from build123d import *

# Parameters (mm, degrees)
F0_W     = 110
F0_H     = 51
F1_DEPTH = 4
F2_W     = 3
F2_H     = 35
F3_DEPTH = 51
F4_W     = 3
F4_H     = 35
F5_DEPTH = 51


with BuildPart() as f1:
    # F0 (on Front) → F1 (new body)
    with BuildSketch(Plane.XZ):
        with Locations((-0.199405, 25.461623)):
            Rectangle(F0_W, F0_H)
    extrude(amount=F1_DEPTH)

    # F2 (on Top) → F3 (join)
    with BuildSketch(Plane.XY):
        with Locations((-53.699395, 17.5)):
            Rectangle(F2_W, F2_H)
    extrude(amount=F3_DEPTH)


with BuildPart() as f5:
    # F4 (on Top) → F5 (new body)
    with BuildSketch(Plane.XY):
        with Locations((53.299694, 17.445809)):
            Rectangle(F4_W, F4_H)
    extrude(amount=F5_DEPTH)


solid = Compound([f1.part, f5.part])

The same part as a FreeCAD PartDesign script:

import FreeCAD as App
import Part
import Sketcher
from FreeCAD import Vector
Q = App.Units.Quantity

doc = App.newDocument("Part")
params = doc.addObject("Spreadsheet::Sheet", "Params")
for row, (alias, value) in enumerate([
    ("sketch1_width", "110 mm"),
    ("sketch1_height", "51 mm"),
    ("pad1_length", "4 mm"),
    ("sketch2_width", "3 mm"),
    ("sketch2_height", "35 mm"),
    ("pad2_length", "51 mm"),
    ("sketch3_width", "3 mm"),
    ("sketch3_height", "35 mm"),
    ("pad3_length", "51 mm"),
], start=1):
    params.set(f"A{row}", alias)
    params.set(f"B{row}", "=" + value)
    params.setAlias(f"B{row}", alias)

body = doc.addObject("PartDesign::Body", "Body")

# Sketch on XZ plane
sketch1 = body.newObject("Sketcher::SketchObject", "Sketch")
sketch1.AttachmentSupport = (doc.getObject("XZ_Plane"), [""])
sketch1.MapMode = "FlatFace"
sketch1.addGeometry([
    Part.LineSegment(Vector(-55, 51, 0), Vector(-55, 0, 0)),
    Part.LineSegment(Vector(-55, 0, 0), Vector(55, 0, 0)),
    Part.LineSegment(Vector(55, 0, 0), Vector(55, 51, 0)),
    Part.LineSegment(Vector(55, 51, 0), Vector(-55, 51, 0)),
], False)
sketch1.addConstraint([
    Sketcher.Constraint("Coincident", 0, 2, 1, 1),
    Sketcher.Constraint("Coincident", 1, 2, 2, 1),
    Sketcher.Constraint("Coincident", 2, 2, 3, 1),
    Sketcher.Constraint("Coincident", 3, 2, 0, 1),
    Sketcher.Constraint("Vertical", 0),
    Sketcher.Constraint("Horizontal", 1),
    Sketcher.Constraint("Vertical", 2),
    Sketcher.Constraint("Horizontal", 3),
    Sketcher.Constraint("DistanceX", 1, 1, 1, 2, Q("110 mm")),
    Sketcher.Constraint("DistanceY", 0, 2, 0, 1, Q("51 mm")),
    Sketcher.Constraint("DistanceX", 0, 2, -1, 1, Q("55.199405 mm")),
    Sketcher.Constraint("DistanceY", 0, 2, -1, 1, Q("0.038377 mm")),
])
sketch1.setExpression("Constraints[8]", "Params.sketch1_width")
sketch1.setExpression("Constraints[9]", "Params.sketch1_height")
pad1 = body.newObject("PartDesign::Pad", "Pad")
pad1.Profile = sketch1
pad1.setExpression("Length", "Params.pad1_length")

# Sketch on XY plane
sketch2 = body.newObject("Sketcher::SketchObject", "Sketch001")
sketch2.AttachmentSupport = (doc.getObject("XY_Plane"), [""])
sketch2.MapMode = "FlatFace"
sketch2.addGeometry([
    Part.LineSegment(Vector(-55.2, 35, 0), Vector(-55.2, 0, 0)),
    Part.LineSegment(Vector(-55.2, 0, 0), Vector(-52.2, 0, 0)),
    Part.LineSegment(Vector(-52.2, 0, 0), Vector(-52.2, 35, 0)),
    Part.LineSegment(Vector(-52.2, 35, 0), Vector(-55.2, 35, 0)),
], False)
sketch2.addConstraint([
    Sketcher.Constraint("Coincident", 0, 2, 1, 1),
    Sketcher.Constraint("Coincident", 1, 2, 2, 1),
    Sketcher.Constraint("Coincident", 2, 2, 3, 1),
    Sketcher.Constraint("Coincident", 3, 2, 0, 1),
    Sketcher.Constraint("Vertical", 0),
    Sketcher.Constraint("Horizontal", 1),
    Sketcher.Constraint("Vertical", 2),
    Sketcher.Constraint("Horizontal", 3),
    Sketcher.Constraint("PointOnObject", 0, 2, -1),
    Sketcher.Constraint("DistanceX", 1, 1, 1, 2, Q("3 mm")),
    Sketcher.Constraint("DistanceY", 0, 2, 0, 1, Q("35 mm")),
    Sketcher.Constraint("DistanceX", 0, 2, -1, 1, Q("55.199395 mm")),
])
sketch2.setExpression("Constraints[9]", "Params.sketch2_width")
sketch2.setExpression("Constraints[10]", "Params.sketch2_height")
pad2 = body.newObject("PartDesign::Pad", "Pad001")
pad2.Profile = sketch2
pad2.setExpression("Length", "Params.pad2_length")
body2 = doc.addObject("PartDesign::Body", "Body001")

# Sketch on XY plane
sketch3 = body2.newObject("Sketcher::SketchObject", "Sketch002")
sketch3.AttachmentSupport = (doc.getObject("XY_Plane001"), [""])
sketch3.MapMode = "FlatFace"
sketch3.addGeometry([
    Part.LineSegment(Vector(51.8, 34.9, 0), Vector(51.8, -0.1, 0)),
    Part.LineSegment(Vector(51.8, -0.1, 0), Vector(54.8, -0.1, 0)),
    Part.LineSegment(Vector(54.8, -0.1, 0), Vector(54.8, 34.9, 0)),
    Part.LineSegment(Vector(54.8, 34.9, 0), Vector(51.8, 34.9, 0)),
], False)
sketch3.addConstraint([
    Sketcher.Constraint("Coincident", 0, 2, 1, 1),
    Sketcher.Constraint("Coincident", 1, 2, 2, 1),
    Sketcher.Constraint("Coincident", 2, 2, 3, 1),
    Sketcher.Constraint("Coincident", 3, 2, 0, 1),
    Sketcher.Constraint("Vertical", 0),
    Sketcher.Constraint("Horizontal", 1),
    Sketcher.Constraint("Vertical", 2),
    Sketcher.Constraint("Horizontal", 3),
    Sketcher.Constraint("DistanceX", 1, 1, 1, 2, Q("3 mm")),
    Sketcher.Constraint("DistanceY", 0, 2, 0, 1, Q("35 mm")),
    Sketcher.Constraint("DistanceY", 0, 2, -1, 1, Q("0.054191 mm")),
    Sketcher.Constraint("DistanceX", -1, 1, 0, 2, Q("51.799694 mm")),
])
sketch3.setExpression("Constraints[8]", "Params.sketch3_width")
sketch3.setExpression("Constraints[9]", "Params.sketch3_height")
pad3 = body2.newObject("PartDesign::Pad", "Pad002")
pad3.Profile = sketch3
pad3.setExpression("Length", "Params.pad3_length")

doc.recompute()
